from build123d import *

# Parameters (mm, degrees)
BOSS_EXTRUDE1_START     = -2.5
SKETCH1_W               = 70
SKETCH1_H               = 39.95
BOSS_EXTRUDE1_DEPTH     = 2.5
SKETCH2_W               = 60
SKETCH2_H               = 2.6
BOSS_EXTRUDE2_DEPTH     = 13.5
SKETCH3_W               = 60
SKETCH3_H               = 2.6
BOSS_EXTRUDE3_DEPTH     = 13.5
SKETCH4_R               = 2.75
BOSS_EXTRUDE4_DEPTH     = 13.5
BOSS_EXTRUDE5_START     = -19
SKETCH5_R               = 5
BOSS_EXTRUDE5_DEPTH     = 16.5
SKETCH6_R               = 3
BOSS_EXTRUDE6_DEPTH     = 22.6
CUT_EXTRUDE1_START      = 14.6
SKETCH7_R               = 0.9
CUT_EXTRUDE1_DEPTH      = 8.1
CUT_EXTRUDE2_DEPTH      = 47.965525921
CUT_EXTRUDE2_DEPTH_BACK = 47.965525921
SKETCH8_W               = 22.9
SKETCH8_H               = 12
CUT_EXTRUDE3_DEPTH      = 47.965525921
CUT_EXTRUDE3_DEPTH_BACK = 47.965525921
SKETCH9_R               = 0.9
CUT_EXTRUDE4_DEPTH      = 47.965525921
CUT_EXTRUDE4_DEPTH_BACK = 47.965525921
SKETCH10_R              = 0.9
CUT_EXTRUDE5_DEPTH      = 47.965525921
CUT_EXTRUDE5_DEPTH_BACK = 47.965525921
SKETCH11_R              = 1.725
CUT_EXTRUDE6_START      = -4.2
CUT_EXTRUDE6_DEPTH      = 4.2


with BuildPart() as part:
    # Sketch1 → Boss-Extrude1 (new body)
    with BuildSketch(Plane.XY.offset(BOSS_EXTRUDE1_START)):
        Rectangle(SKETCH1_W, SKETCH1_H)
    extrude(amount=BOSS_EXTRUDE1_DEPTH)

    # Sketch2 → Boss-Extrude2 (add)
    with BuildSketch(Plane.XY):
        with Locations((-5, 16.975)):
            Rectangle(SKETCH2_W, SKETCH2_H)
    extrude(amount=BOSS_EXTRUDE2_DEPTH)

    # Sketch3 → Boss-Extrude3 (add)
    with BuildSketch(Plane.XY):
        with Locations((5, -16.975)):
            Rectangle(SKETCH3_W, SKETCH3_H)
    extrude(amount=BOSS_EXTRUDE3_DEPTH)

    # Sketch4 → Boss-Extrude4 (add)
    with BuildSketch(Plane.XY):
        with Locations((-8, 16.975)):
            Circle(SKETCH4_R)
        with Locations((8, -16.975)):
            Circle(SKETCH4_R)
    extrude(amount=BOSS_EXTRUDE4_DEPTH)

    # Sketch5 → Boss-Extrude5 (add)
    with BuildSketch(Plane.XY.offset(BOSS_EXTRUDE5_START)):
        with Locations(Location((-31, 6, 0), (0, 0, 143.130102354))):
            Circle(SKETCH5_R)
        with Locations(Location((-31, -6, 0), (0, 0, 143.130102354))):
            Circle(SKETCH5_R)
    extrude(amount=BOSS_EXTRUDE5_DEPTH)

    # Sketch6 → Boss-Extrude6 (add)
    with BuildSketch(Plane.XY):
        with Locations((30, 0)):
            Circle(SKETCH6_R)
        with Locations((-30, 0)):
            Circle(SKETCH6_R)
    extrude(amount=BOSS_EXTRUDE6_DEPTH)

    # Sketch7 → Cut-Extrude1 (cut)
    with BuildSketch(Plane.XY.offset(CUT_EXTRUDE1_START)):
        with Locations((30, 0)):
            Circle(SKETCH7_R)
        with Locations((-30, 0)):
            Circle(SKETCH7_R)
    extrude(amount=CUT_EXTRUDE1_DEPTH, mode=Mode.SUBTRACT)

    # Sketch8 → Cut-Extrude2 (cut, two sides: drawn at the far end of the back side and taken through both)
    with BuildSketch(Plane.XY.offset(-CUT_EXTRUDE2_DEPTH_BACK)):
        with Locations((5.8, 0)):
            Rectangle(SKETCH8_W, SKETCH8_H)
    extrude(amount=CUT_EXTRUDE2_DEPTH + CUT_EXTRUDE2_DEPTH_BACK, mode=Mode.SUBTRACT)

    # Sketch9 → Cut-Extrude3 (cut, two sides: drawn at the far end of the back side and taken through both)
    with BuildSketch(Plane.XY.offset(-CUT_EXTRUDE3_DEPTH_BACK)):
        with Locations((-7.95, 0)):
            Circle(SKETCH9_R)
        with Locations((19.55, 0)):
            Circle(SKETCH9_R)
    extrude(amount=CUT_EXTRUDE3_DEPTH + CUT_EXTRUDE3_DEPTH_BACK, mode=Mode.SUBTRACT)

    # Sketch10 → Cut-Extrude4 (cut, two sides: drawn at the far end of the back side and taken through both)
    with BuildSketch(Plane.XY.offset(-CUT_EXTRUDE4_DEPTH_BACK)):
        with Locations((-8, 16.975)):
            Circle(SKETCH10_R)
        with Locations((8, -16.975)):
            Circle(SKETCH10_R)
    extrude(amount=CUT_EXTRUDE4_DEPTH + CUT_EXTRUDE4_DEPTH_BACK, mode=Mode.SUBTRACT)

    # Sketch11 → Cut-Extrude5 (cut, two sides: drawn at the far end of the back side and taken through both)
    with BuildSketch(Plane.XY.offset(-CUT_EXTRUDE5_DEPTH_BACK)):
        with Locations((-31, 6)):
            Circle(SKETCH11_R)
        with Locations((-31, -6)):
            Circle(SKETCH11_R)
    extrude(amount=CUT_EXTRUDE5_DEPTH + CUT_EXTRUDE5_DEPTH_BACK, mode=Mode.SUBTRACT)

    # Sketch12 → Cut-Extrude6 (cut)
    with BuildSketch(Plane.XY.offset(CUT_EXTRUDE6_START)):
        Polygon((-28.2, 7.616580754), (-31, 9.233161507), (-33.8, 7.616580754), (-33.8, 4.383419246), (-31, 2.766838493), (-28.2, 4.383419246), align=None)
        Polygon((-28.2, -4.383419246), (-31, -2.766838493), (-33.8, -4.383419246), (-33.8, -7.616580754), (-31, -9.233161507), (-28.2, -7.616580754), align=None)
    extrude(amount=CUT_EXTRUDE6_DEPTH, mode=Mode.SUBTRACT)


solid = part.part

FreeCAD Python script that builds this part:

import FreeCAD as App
import Part
import Sketcher
from FreeCAD import Vector
Q = App.Units.Quantity

doc = App.newDocument("Part")
body = doc.addObject("PartDesign::Body", "Body")

sketch1 = body.newObject("Sketcher::SketchObject", "Sketch")
sketch1.AttachmentSupport = (doc.getObject("XY_Plane"), [""])
sketch1.MapMode = "FlatFace"
sketch1.AttachmentOffset = App.Placement(Vector(0, 0, -2.5), App.Rotation())
sketch1.addGeometry(Part.LineSegment(Vector(-35, 20, 0), Vector(-35, -20, 0)), False)
sketch1.addGeometry(Part.LineSegment(Vector(-35, -20, 0), Vector(35, -20, 0)), False)
sketch1.addGeometry(Part.LineSegment(Vector(35, -20, 0), Vector(35, 20, 0)), False)
sketch1.addGeometry(Part.LineSegment(Vector(35, 20, 0), Vector(-35, 20, 0)), False)
sketch1.addConstraint(Sketcher.Constraint("Coincident", 0, 2, 1, 1))
sketch1.addConstraint(Sketcher.Constraint("Coincident", 1, 2, 2, 1))
sketch1.addConstraint(Sketcher.Constraint("Coincident", 2, 2, 3, 1))
sketch1.addConstraint(Sketcher.Constraint("Coincident", 3, 2, 0, 1))
sketch1.addConstraint(Sketcher.Constraint("Vertical", 0))
sketch1.addConstraint(Sketcher.Constraint("Horizontal", 1))
sketch1.addConstraint(Sketcher.Constraint("Vertical", 2))
sketch1.addConstraint(Sketcher.Constraint("Horizontal", 3))
sketch1.addConstraint(Sketcher.Constraint("Symmetric", 0, 2, 2, 2, -1, 1))
sketch1.addConstraint(Sketcher.Constraint("DistanceX", 1, 1, 1, 2, Q("70 mm")))
sketch1.addConstraint(Sketcher.Constraint("DistanceY", 0, 2, 0, 1, Q("39.95 mm")))
pad1 = body.newObject("PartDesign::Pad", "Pad")
pad1.Profile = sketch1
pad1.Length = 2.5

sketch2 = body.newObject("Sketcher::SketchObject", "Sketch001")
sketch2.AttachmentSupport = (doc.getObject("XY_Plane"), [""])
sketch2.MapMode = "FlatFace"
sketch2.addGeometry(Part.LineSegment(Vector(-35, 18.3, 0), Vector(-35, 15.7, 0)), False)
sketch2.addGeometry(Part.LineSegment(Vector(-35, 15.7, 0), Vector(25, 15.7, 0)), False)
sketch2.addGeometry(Part.LineSegment(Vector(25, 15.7, 0), Vector(25, 18.3, 0)), False)
sketch2.addGeometry(Part.LineSegment(Vector(25, 18.3, 0), Vector(-35, 18.3, 0)), False)
sketch2.addConstraint(Sketcher.Constraint("Coincident", 0, 2, 1, 1))
sketch2.addConstraint(Sketcher.Constraint("Coincident", 1, 2, 2, 1))
sketch2.addConstraint(Sketcher.Constraint("Coincident", 2, 2, 3, 1))
sketch2.addConstraint(Sketcher.Constraint("Coincident", 3, 2, 0, 1))
sketch2.addConstraint(Sketcher.Constraint("Vertical", 0))
sketch2.addConstraint(Sketcher.Constraint("Horizontal", 1))
sketch2.addConstraint(Sketcher.Constraint("Vertical", 2))
sketch2.addConstraint(Sketcher.Constraint("Horizontal", 3))
sketch2.addConstraint(Sketcher.Constraint("DistanceX", 1, 1, 1, 2, Q("60 mm")))
sketch2.addConstraint(Sketcher.Constraint("DistanceY", 0, 2, 0, 1, Q("2.6 mm")))
sketch2.addConstraint(Sketcher.Constraint("DistanceX", 0, 2, -1, 1, Q("35 mm")))
sketch2.addConstraint(Sketcher.Constraint("DistanceY", -1, 1, 0, 2, Q("15.675 mm")))
pad2 = body.newObject("PartDesign::Pad", "Pad001")
pad2.Profile = sketch2
pad2.Length = 13.5

sketch3 = body.newObject("Sketcher::SketchObject", "Sketch002")
sketch3.AttachmentSupport = (doc.getObject("XY_Plane"), [""])
sketch3.MapMode = "FlatFace"
sketch3.addGeometry(Part.LineSegment(Vector(-25, -15.7, 0), Vector(-25, -18.3, 0)), False)
sketch3.addGeometry(Part.LineSegment(Vector(-25, -18.3, 0), Vector(35, -18.3, 0)), False)
sketch3.addGeometry(Part.LineSegment(Vector(35, -18.3, 0), Vector(35, -15.7, 0)), False)
sketch3.addGeometry(Part.LineSegment(Vector(35, -15.7, 0), Vector(-25, -15.7, 0)), False)
sketch3.addConstraint(Sketcher.Constraint("Coincident", 0, 2, 1, 1))
sketch3.addConstraint(Sketcher.Constraint("Coincident", 1, 2, 2, 1))
sketch3.addConstraint(Sketcher.Constraint("Coincident", 2, 2, 3, 1))
sketch3.addConstraint(Sketcher.Constraint("Coincident", 3, 2, 0, 1))
sketch3.addConstraint(Sketcher.Constraint("Vertical", 0))
sketch3.addConstraint(Sketcher.Constraint("Horizontal", 1))
sketch3.addConstraint(Sketcher.Constraint("Vertical", 2))
sketch3.addConstraint(Sketcher.Constraint("Horizontal", 3))
sketch3.addConstraint(Sketcher.Constraint("DistanceX", 1, 1, 1, 2, Q("60 mm")))
sketch3.addConstraint(Sketcher.Constraint("DistanceY", 0, 2, 0, 1, Q("2.6 mm")))
sketch3.addConstraint(Sketcher.Constraint("DistanceX", 0, 2, -1, 1, Q("25 mm")))
sketch3.addConstraint(Sketcher.Constraint("DistanceY", 0, 2, -1, 1, Q("18.275 mm")))
pad3 = body.newObject("PartDesign::Pad", "Pad002")
pad3.Profile = sketch3
pad3.Length = 13.5

sketch4 = body.newObject("Sketcher::SketchObject", "Sketch003")
sketch4.AttachmentSupport = (doc.getObject("XY_Plane"), [""])
sketch4.MapMode = "FlatFace"
sketch4.addGeometry(Part.Circle(Vector(-8, 17, 0), Vector(0, 0, 1), 2.8), False)
sketch4.addGeometry(Part.Circle(Vector(8, -17, 0), Vector(0, 0, 1), 2.8), False)
sketch4.addConstraint(Sketcher.Constraint("Equal", 0, 1))
sketch4.addConstraint(Sketcher.Constraint("Symmetric", 0, 3, 1, 3, -1, 1))
sketch4.addConstraint(Sketcher.Constraint("Diameter", 0, Q("5.5 mm")))
sketch4.addConstraint(Sketcher.Constraint("DistanceX", 0, 3, -1, 1, Q("8 mm")))
sketch4.addConstraint(Sketcher.Constraint("DistanceY", 1, 3, 0, 3, Q("33.95 mm")))
pad4 = body.newObject("PartDesign::Pad", "Pad003")
pad4.Profile = sketch4
pad4.Length = 13.5

sketch5 = body.newObject("Sketcher::SketchObject", "Sketch004")
sketch5.AttachmentSupport = (doc.getObject("XY_Plane"), [""])
sketch5.MapMode = "FlatFace"
sketch5.AttachmentOffset = App.Placement(Vector(0, 0, -19), App.Rotation())
sketch5.addGeometry(Part.Circle(Vector(-31, 6, 0), Vector(0, 0, 1), 5), False)
sketch5.addGeometry(Part.Circle(Vector(-31, -6, 0), Vector(0, 0, 1), 5), False)
sketch5.addConstraint(Sketcher.Constraint("Equal", 0, 1))
sketch5.addConstraint(Sketcher.Constraint("Symmetric", 0, 3, 1, 3, -1))
sketch5.addConstraint(Sketcher.Constraint("Diameter", 0, Q("10 mm")))
sketch5.addConstraint(Sketcher.Constraint("DistanceX", 0, 3, -1, 1, Q("31 mm")))
sketch5.addConstraint(Sketcher.Constraint("DistanceY", -1, 1, 0, 3, Q("6 mm")))
pad5 = body.newObject("PartDesign::Pad", "Pad004")
pad5.Profile = sketch5
pad5.Length = 16.5

sketch6 = body.newObject("Sketcher::SketchObject", "Sketch005")
sketch6.AttachmentSupport = (doc.getObject("XY_Plane"), [""])
sketch6.MapMode = "FlatFace"
sketch6.addGeometry(Part.Circle(Vector(30, 0, 0), Vector(0, 0, 1), 3), False)
sketch6.addGeometry(Part.Circle(Vector(-30, 0, 0), Vector(0, 0, 1), 3), False)
sketch6.addConstraint(Sketcher.Constraint("Equal", 0, 1))
sketch6.addConstraint(Sketcher.Constraint("Symmetric", 0, 3, 1, 3, -1, 1))
sketch6.addConstraint(Sketcher.Constraint("PointOnObject", 0, 3, -1))
sketch6.addConstraint(Sketcher.Constraint("Diameter", 0, Q("6 mm")))
sketch6.addConstraint(Sketcher.Constraint("DistanceX", -1, 1, 0, 3, Q("30 mm")))
pad6 = body.newObject("PartDesign::Pad", "Pad005")
pad6.Profile = sketch6
pad6.Length = 22.6

sketch7 = body.newObject("Sketcher::SketchObject", "Sketch006")
sketch7.AttachmentSupport = (doc.getObject("XY_Plane"), [""])
sketch7.MapMode = "FlatFace"
sketch7.AttachmentOffset = App.Placement(Vector(0, 0, 14.6), App.Rotation())
sketch7.addGeometry(Part.Circle(Vector(30, 0, 0), Vector(0, 0, 1), 0.9), False)
sketch7.addGeometry(Part.Circle(Vector(-30, 0, 0), Vector(0, 0, 1), 0.9), False)
sketch7.addConstraint(Sketcher.Constraint("Equal", 0, 1))
sketch7.addConstraint(Sketcher.Constraint("Symmetric", 0, 3, 1, 3, -1, 1))
sketch7.addConstraint(Sketcher.Constraint("PointOnObject", 0, 3, -1))
sketch7.addConstraint(Sketcher.Constraint("Diameter", 0, Q("1.8 mm")))
sketch7.addConstraint(Sketcher.Constraint("DistanceX", -1, 1, 0, 3, Q("30 mm")))
pocket1 = body.newObject("PartDesign::Pocket", "Pocket")
pocket1.Profile = sketch7
pocket1.Length = 8.1
pocket1.Reversed = True

sketch8 = body.newObject("Sketcher::SketchObject", "Sketch007")
sketch8.AttachmentSupport = (doc.getObject("XY_Plane"), [""])
sketch8.MapMode = "FlatFace"
sketch8.addGeometry(Part.LineSegment(Vector(-6, 6, 0), Vector(-6, -6, 0)), False)
sketch8.addGeometry(Part.LineSegment(Vector(-6, -6, 0), Vector(17, -6, 0)), False)
sketch8.addGeometry(Part.LineSegment(Vector(17, -6, 0), Vector(17, 6, 0)), False)
sketch8.addGeometry(Part.LineSegment(Vector(17, 6, 0), Vector(-6, 6, 0)), False)
sketch8.addConstraint(Sketcher.Constraint("Coincident", 0, 2, 1, 1))
sketch8.addConstraint(Sketcher.Constraint("Coincident", 1, 2, 2, 1))
sketch8.addConstraint(Sketcher.Constraint("Coincident", 2, 2, 3, 1))
sketch8.addConstraint(Sketcher.Constraint("Coincident", 3, 2, 0, 1))
sketch8.addConstraint(Sketcher.Constraint("Vertical", 0))
sketch8.addConstraint(Sketcher.Constraint("Horizontal", 1))
sketch8.addConstraint(Sketcher.Constraint("Vertical", 2))
sketch8.addConstraint(Sketcher.Constraint("Horizontal", 3))
sketch8.addConstraint(Sketcher.Constraint("DistanceY", 0, 2, 0, 1, Q("12 mm")))
sketch8.addConstraint(Sketcher.Constraint("DistanceX", 1, 1, 1, 2, Q("22.9 mm")))
sketch8.addConstraint(Sketcher.Constraint("DistanceY", 0, 2, -1, 1, Q("6 mm")))
sketch8.addConstraint(Sketcher.Constraint("DistanceX", 0, 2, -1, 1, Q("5.65 mm")))
pocket2 = body.newObject("PartDesign::Pocket", "Pocket001")
pocket2.Profile = sketch8
pocket2.Type = "ThroughAll"
pocket2.Midplane = True

sketch9 = body.newObject("Sketcher::SketchObject", "Sketch008")
sketch9.AttachmentSupport = (doc.getObject("XY_Plane"), [""])
sketch9.MapMode = "FlatFace"
sketch9.addGeometry(Part.Circle(Vector(-8, 0, 0), Vector(0, 0, 1), 0.9), False)
sketch9.addGeometry(Part.Circle(Vector(19.6, 0, 0), Vector(0, 0, 1), 0.9), False)
sketch9.addConstraint(Sketcher.Constraint("Equal", 0, 1))
sketch9.addConstraint(Sketcher.Constraint("PointOnObject", 0, 3, -1))
sketch9.addConstraint(Sketcher.Constraint("PointOnObject", 1, 3, -1))
sketch9.addConstraint(Sketcher.Constraint("Diameter", 0, Q("1.8 mm")))
sketch9.addConstraint(Sketcher.Constraint("DistanceX", 0, 3, 1, 3, Q("27.5 mm")))
sketch9.addConstraint(Sketcher.Constraint("DistanceX", 0, 3, -1, 1, Q("7.95 mm")))
pocket3 = body.newObject("PartDesign::Pocket", "Pocket002")
pocket3.Profile = sketch9
pocket3.Type = "ThroughAll"
pocket3.Midplane = True

sketch10 = body.newObject("Sketcher::SketchObject", "Sketch009")
sketch10.AttachmentSupport = (doc.getObject("XY_Plane"), [""])
sketch10.MapMode = "FlatFace"
sketch10.addGeometry(Part.Circle(Vector(-8, 17, 0), Vector(0, 0, 1), 0.9), False)
sketch10.addGeometry(Part.Circle(Vector(8, -17, 0), Vector(0, 0, 1), 0.9), False)
sketch10.addConstraint(Sketcher.Constraint("Equal", 0, 1))
sketch10.addConstraint(Sketcher.Constraint("Symmetric", 0, 3, 1, 3, -1, 1))
sketch10.addConstraint(Sketcher.Constraint("Diameter", 0, Q("1.8 mm")))
sketch10.addConstraint(Sketcher.Constraint("DistanceX", 0, 3, -1, 1, Q("8 mm")))
sketch10.addConstraint(Sketcher.Constraint("DistanceY", 1, 3, 0, 3, Q("33.95 mm")))
pocket4 = body.newObject("PartDesign::Pocket", "Pocket003")
pocket4.Profile = sketch10
pocket4.Type = "ThroughAll"
pocket4.Midplane = True

sketch11 = body.newObject("Sketcher::SketchObject", "Sketch010")
sketch11.AttachmentSupport = (doc.getObject("XY_Plane"), [""])
sketch11.MapMode = "FlatFace"
sketch11.addGeometry(Part.Circle(Vector(-31, 6, 0), Vector(0, 0, 1), 1.7), False)
sketch11.addGeometry(Part.Circle(Vector(-31, -6, 0), Vector(0, 0, 1), 1.7), False)
sketch11.addConstraint(Sketcher.Constraint("Equal", 0, 1))
sketch11.addConstraint(Sketcher.Constraint("Symmetric", 0, 3, 1, 3, -1))
sketch11.addConstraint(Sketcher.Constraint("Diameter", 0, Q("3.45 mm")))
sketch11.addConstraint(Sketcher.Constraint("DistanceX", 0, 3, -1, 1, Q("31 mm")))
sketch11.addConstraint(Sketcher.Constraint("DistanceY", -1, 1, 0, 3, Q("6 mm")))
pocket5 = body.newObject("PartDesign::Pocket", "Pocket004")
pocket5.Profile = sketch11
pocket5.Type = "ThroughAll"
pocket5.Midplane = True

sketch12 = body.newObject("Sketcher::SketchObject", "Sketch011")
sketch12.AttachmentSupport = (doc.getObject("XY_Plane"), [""])
sketch12.MapMode = "FlatFace"
sketch12.AttachmentOffset = App.Placement(Vector(0, 0, -4.2), App.Rotation())
sketch12.addGeometry(Part.LineSegment(Vector(-28.2, 7.6, 0), Vector(-31, 9.2, 0)), False)
sketch12.addGeometry(Part.LineSegment(Vector(-31, 9.2, 0), Vector(-33.8, 7.6, 0)), False)
sketch12.addGeometry(Part.LineSegment(Vector(-33.8, 7.6, 0), Vector(-33.8, 4.4, 0)), False)
sketch12.addGeometry(Part.LineSegment(Vector(-33.8, 4.4, 0), Vector(-31, 2.8, 0)), False)
sketch12.addGeometry(Part.LineSegment(Vector(-31, 2.8, 0), Vector(-28.2, 4.4, 0)), False)
sketch12.addGeometry(Part.LineSegment(Vector(-28.2, 4.4, 0), Vector(-28.2, 7.6, 0)), False)
sketch12.addGeometry(Part.LineSegment(Vector(-28.2, -4.4, 0), Vector(-31, -2.8, 0)), False)
sketch12.addGeometry(Part.LineSegment(Vector(-31, -2.8, 0), Vector(-33.8, -4.4, 0)), False)
sketch12.addGeometry(Part.LineSegment(Vector(-33.8, -4.4, 0), Vector(-33.8, -7.6, 0)), False)
sketch12.addGeometry(Part.LineSegment(Vector(-33.8, -7.6, 0), Vector(-31, -9.2, 0)), False)
sketch12.addGeometry(Part.LineSegment(Vector(-31, -9.2, 0), Vector(-28.2, -7.6, 0)), False)
sketch12.addGeometry(Part.LineSegment(Vector(-28.2, -7.6, 0), Vector(-28.2, -4.4, 0)), False)
sketch12.addConstraint(Sketcher.Constraint("Coincident", 0, 2, 1, 1))
sketch12.addConstraint(Sketcher.Constraint("Coincident", 1, 2, 2, 1))
sketch12.addConstraint(Sketcher.Constraint("Coincident", 2, 2, 3, 1))
sketch12.addConstraint(Sketcher.Constraint("Coincident", 3, 2, 4, 1))
sketch12.addConstraint(Sketcher.Constraint("Coincident", 4, 2, 5, 1))
sketch12.addConstraint(Sketcher.Constraint("Coincident", 5, 2, 0, 1))
sketch12.addConstraint(Sketcher.Constraint("Coincident", 6, 2, 7, 1))
sketch12.addConstraint(Sketcher.Constraint("Coincident", 7, 2, 8, 1))
sketch12.addConstraint(Sketcher.Constraint("Coincident", 8, 2, 9, 1))
sketch12.addConstraint(Sketcher.Constraint("Coincident", 9, 2, 10, 1))
sketch12.addConstraint(Sketcher.Constraint("Coincident", 10, 2, 11, 1))
sketch12.addConstraint(Sketcher.Constraint("Coincident", 11, 2, 6, 1))
sketch12.addConstraint(Sketcher.Constraint("Vertical", 2))
sketch12.addConstraint(Sketcher.Constraint("Vertical", 5))
sketch12.addConstraint(Sketcher.Constraint("Vertical", 8))
sketch12.addConstraint(Sketcher.Constraint("Vertical", 11))
sketch12.addConstraint(Sketcher.Constraint("Symmetric", 3, 2, 6, 2, -1))
sketch12.addConstraint(Sketcher.Constraint("Symmetric", 2, 2, 7, 2, -1))
sketch12.addConstraint(Sketcher.Constraint("Symmetric", 0, 2, 9, 2, -1))
sketch12.addConstraint(Sketcher.Constraint("Symmetric", 5, 2, 10, 2, -1))
sketch12.addConstraint(Sketcher.Constraint("Parallel", 0, 3))
sketch12.addConstraint(Sketcher.Constraint("Parallel", 1, 4))
sketch12.addConstraint(Sketcher.Constraint("Parallel", 3, 6))
sketch12.addConstraint(Sketcher.Constraint("Parallel", 4, 7))
sketch12.addConstraint(Sketcher.Constraint("Parallel", 6, 9))
sketch12.addConstraint(Sketcher.Constraint("Horizontal", 2, 2, 4, 2))
sketch12.addConstraint(Sketcher.Constraint("Horizontal", 1, 2, 5, 2))
sketch12.addConstraint(Sketcher.Constraint("Angle", 0, Q("150 deg")))
sketch12.addConstraint(Sketcher.Constraint("DistanceX", 0, 2, -1, 1, Q("31 mm")))
sketch12.addConstraint(Sketcher.Constraint("DistanceY", 7, 2, 1, 2, Q("12 mm")))
sketch12.addConstraint(Sketcher.Constraint("DistanceX", 1, 2, -1, 1, Q("33.8 mm")))
sketch12.addConstraint(Sketcher.Constraint("DistanceY", 2, 2, 2, 1, Q("3.233162 mm")))
pocket6 = body.newObject("PartDesign::Pocket", "Pocket005")
pocket6.Profile = sketch12
pocket6.Length = 4.2
pocket6.Reversed = True

doc.recompute()
